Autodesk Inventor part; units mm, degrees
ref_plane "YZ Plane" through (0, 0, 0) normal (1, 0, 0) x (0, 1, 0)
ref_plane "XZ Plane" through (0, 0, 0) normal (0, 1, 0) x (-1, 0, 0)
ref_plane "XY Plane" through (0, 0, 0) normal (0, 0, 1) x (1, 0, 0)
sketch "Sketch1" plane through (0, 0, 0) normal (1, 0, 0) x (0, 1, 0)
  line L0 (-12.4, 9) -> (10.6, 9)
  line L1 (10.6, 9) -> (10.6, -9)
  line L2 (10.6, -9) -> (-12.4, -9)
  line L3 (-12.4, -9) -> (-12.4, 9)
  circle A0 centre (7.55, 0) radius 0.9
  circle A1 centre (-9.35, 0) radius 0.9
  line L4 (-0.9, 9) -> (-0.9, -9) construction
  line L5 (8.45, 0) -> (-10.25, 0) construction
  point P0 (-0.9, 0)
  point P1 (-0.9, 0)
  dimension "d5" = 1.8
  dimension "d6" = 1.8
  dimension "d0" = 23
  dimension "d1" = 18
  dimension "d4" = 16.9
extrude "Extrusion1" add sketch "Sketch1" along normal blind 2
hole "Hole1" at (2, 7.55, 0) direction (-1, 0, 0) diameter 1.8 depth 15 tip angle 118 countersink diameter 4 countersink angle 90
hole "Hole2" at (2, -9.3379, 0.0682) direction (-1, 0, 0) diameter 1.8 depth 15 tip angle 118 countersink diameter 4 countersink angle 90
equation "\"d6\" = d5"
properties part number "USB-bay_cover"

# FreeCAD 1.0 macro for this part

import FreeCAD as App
import Part
import Sketcher

V = App.Vector

doc = App.newDocument("Part")
body = doc.addObject("PartDesign::Body", "Body")

# Sketch on YZ plane
sketch1 = body.newObject("Sketcher::SketchObject", "Sketch")
sketch1.AttachmentSupport = (doc.getObject("YZ_Plane"), [""])
sketch1.MapMode = "FlatFace"
sketch1.addGeometry(Part.LineSegment(V(10.6, 9, 0), V(-12.4, 9, 0)), False)
sketch1.addGeometry(Part.LineSegment(V(-12.4, 9, 0), V(-12.4, -9, 0)), False)
sketch1.addGeometry(Part.LineSegment(V(-12.4, -9, 0), V(10.6, -9, 0)), False)
sketch1.addGeometry(Part.LineSegment(V(10.6, -9, 0), V(10.6, 9, 0)), False)
sketch1.addGeometry(Part.Circle(V(-9.3, 0, 0), V(0, 0, 1), 0.9), False)
sketch1.addGeometry(Part.Circle(V(7.5, 0, 0), V(0, 0, 1), 0.9), False)
sketch1.addConstraint(Sketcher.Constraint("Coincident", 0, 2, 1, 1))
sketch1.addConstraint(Sketcher.Constraint("Coincident", 1, 2, 2, 1))
sketch1.addConstraint(Sketcher.Constraint("Coincident", 2, 2, 3, 1))
sketch1.addConstraint(Sketcher.Constraint("Coincident", 3, 2, 0, 1))
sketch1.addConstraint(Sketcher.Constraint("Horizontal", 0))
sketch1.addConstraint(Sketcher.Constraint("Vertical", 1))
sketch1.addConstraint(Sketcher.Constraint("Horizontal", 2))
sketch1.addConstraint(Sketcher.Constraint("Vertical", 3))
sketch1.addConstraint(Sketcher.Constraint("Equal", 4, 5))
sketch1.addConstraint(Sketcher.Constraint("PointOnObject", 4, 3, -1))
sketch1.addConstraint(Sketcher.Constraint("PointOnObject", 5, 3, -1))
sketch1.addConstraint(Sketcher.Constraint("Diameter", 4, 1.8))
sketch1.addConstraint(Sketcher.Constraint("DistanceX", 0, 2, 0, 1, 23.0))
sketch1.addConstraint(Sketcher.Constraint("DistanceY", 1, 2, 1, 1, 18.0))
sketch1.addConstraint(Sketcher.Constraint("DistanceX", 4, 3, 5, 3, 16.9))
sketch1.addConstraint(Sketcher.Constraint("DistanceY", -1, 1, 0, 2, 9.0))
sketch1.addConstraint(Sketcher.Constraint("DistanceX", 0, 2, -1, 1, 12.4))
sketch1.addConstraint(Sketcher.Constraint("DistanceX", 4, 3, -1, 1, 9.35))
pad1 = body.newObject("PartDesign::Pad", "Pad")
pad1.Profile = sketch1
pad1.Length = 2

# Sketch on YZ plane
sketch2 = body.newObject("Sketcher::SketchObject", "Sketch001")
sketch2.AttachmentSupport = (doc.getObject("YZ_Plane"), [""])
sketch2.MapMode = "FlatFace"
sketch2.AttachmentOffset = App.Placement(V(0, 0, 2), App.Rotation())
sketch2.addGeometry(Part.Circle(V(7.5, 0, 0), V(0, 0, 1), 0.9), False)
sketch2.addConstraint(Sketcher.Constraint("PointOnObject", 0, 3, -1))
sketch2.addConstraint(Sketcher.Constraint("Diameter", 0, 1.8))
sketch2.addConstraint(Sketcher.Constraint("DistanceX", -1, 1, 0, 3, 7.55))
doc.recompute()
hole = body.newObject("PartDesign::Hole", "Hole")
hole.Profile = sketch2
hole.ThreadType = "None"
hole.Diameter = 1.8
hole.DepthType = "Dimension"
hole.Depth = 15
hole.DrillPoint = "Angled"
hole.DrillPointAngle = 118
hole.HoleCutType = "Countersink"
hole.HoleCutDiameter = 4
hole.HoleCutCountersinkAngle = 90

# Sketch on YZ plane
sketch3 = body.newObject("Sketcher::SketchObject", "Sketch002")
sketch3.AttachmentSupport = (doc.getObject("YZ_Plane"), [""])
sketch3.MapMode = "FlatFace"
sketch3.AttachmentOffset = App.Placement(V(0, 0, 2), App.Rotation())
sketch3.addGeometry(Part.Circle(V(-9.3, 0.1, 0), V(0, 0, 1), 0.9), False)
sketch3.addConstraint(Sketcher.Constraint("Diameter", 0, 1.8))
sketch3.addConstraint(Sketcher.Constraint("DistanceX", 0, 3, -1, 1, 9.338))
sketch3.addConstraint(Sketcher.Constraint("DistanceY", -1, 1, 0, 3, 0.0682))
doc.recompute()
hole2 = body.newObject("PartDesign::Hole", "Hole001")
hole2.Profile = sketch3
hole2.ThreadType = "None"
hole2.Diameter = 1.8
hole2.DepthType = "Dimension"
hole2.Depth = 15
hole2.DrillPoint = "Angled"
hole2.DrillPointAngle = 118
hole2.HoleCutType = "Countersink"
hole2.HoleCutDiameter = 4
hole2.HoleCutCountersinkAngle = 90

doc.recompute()
